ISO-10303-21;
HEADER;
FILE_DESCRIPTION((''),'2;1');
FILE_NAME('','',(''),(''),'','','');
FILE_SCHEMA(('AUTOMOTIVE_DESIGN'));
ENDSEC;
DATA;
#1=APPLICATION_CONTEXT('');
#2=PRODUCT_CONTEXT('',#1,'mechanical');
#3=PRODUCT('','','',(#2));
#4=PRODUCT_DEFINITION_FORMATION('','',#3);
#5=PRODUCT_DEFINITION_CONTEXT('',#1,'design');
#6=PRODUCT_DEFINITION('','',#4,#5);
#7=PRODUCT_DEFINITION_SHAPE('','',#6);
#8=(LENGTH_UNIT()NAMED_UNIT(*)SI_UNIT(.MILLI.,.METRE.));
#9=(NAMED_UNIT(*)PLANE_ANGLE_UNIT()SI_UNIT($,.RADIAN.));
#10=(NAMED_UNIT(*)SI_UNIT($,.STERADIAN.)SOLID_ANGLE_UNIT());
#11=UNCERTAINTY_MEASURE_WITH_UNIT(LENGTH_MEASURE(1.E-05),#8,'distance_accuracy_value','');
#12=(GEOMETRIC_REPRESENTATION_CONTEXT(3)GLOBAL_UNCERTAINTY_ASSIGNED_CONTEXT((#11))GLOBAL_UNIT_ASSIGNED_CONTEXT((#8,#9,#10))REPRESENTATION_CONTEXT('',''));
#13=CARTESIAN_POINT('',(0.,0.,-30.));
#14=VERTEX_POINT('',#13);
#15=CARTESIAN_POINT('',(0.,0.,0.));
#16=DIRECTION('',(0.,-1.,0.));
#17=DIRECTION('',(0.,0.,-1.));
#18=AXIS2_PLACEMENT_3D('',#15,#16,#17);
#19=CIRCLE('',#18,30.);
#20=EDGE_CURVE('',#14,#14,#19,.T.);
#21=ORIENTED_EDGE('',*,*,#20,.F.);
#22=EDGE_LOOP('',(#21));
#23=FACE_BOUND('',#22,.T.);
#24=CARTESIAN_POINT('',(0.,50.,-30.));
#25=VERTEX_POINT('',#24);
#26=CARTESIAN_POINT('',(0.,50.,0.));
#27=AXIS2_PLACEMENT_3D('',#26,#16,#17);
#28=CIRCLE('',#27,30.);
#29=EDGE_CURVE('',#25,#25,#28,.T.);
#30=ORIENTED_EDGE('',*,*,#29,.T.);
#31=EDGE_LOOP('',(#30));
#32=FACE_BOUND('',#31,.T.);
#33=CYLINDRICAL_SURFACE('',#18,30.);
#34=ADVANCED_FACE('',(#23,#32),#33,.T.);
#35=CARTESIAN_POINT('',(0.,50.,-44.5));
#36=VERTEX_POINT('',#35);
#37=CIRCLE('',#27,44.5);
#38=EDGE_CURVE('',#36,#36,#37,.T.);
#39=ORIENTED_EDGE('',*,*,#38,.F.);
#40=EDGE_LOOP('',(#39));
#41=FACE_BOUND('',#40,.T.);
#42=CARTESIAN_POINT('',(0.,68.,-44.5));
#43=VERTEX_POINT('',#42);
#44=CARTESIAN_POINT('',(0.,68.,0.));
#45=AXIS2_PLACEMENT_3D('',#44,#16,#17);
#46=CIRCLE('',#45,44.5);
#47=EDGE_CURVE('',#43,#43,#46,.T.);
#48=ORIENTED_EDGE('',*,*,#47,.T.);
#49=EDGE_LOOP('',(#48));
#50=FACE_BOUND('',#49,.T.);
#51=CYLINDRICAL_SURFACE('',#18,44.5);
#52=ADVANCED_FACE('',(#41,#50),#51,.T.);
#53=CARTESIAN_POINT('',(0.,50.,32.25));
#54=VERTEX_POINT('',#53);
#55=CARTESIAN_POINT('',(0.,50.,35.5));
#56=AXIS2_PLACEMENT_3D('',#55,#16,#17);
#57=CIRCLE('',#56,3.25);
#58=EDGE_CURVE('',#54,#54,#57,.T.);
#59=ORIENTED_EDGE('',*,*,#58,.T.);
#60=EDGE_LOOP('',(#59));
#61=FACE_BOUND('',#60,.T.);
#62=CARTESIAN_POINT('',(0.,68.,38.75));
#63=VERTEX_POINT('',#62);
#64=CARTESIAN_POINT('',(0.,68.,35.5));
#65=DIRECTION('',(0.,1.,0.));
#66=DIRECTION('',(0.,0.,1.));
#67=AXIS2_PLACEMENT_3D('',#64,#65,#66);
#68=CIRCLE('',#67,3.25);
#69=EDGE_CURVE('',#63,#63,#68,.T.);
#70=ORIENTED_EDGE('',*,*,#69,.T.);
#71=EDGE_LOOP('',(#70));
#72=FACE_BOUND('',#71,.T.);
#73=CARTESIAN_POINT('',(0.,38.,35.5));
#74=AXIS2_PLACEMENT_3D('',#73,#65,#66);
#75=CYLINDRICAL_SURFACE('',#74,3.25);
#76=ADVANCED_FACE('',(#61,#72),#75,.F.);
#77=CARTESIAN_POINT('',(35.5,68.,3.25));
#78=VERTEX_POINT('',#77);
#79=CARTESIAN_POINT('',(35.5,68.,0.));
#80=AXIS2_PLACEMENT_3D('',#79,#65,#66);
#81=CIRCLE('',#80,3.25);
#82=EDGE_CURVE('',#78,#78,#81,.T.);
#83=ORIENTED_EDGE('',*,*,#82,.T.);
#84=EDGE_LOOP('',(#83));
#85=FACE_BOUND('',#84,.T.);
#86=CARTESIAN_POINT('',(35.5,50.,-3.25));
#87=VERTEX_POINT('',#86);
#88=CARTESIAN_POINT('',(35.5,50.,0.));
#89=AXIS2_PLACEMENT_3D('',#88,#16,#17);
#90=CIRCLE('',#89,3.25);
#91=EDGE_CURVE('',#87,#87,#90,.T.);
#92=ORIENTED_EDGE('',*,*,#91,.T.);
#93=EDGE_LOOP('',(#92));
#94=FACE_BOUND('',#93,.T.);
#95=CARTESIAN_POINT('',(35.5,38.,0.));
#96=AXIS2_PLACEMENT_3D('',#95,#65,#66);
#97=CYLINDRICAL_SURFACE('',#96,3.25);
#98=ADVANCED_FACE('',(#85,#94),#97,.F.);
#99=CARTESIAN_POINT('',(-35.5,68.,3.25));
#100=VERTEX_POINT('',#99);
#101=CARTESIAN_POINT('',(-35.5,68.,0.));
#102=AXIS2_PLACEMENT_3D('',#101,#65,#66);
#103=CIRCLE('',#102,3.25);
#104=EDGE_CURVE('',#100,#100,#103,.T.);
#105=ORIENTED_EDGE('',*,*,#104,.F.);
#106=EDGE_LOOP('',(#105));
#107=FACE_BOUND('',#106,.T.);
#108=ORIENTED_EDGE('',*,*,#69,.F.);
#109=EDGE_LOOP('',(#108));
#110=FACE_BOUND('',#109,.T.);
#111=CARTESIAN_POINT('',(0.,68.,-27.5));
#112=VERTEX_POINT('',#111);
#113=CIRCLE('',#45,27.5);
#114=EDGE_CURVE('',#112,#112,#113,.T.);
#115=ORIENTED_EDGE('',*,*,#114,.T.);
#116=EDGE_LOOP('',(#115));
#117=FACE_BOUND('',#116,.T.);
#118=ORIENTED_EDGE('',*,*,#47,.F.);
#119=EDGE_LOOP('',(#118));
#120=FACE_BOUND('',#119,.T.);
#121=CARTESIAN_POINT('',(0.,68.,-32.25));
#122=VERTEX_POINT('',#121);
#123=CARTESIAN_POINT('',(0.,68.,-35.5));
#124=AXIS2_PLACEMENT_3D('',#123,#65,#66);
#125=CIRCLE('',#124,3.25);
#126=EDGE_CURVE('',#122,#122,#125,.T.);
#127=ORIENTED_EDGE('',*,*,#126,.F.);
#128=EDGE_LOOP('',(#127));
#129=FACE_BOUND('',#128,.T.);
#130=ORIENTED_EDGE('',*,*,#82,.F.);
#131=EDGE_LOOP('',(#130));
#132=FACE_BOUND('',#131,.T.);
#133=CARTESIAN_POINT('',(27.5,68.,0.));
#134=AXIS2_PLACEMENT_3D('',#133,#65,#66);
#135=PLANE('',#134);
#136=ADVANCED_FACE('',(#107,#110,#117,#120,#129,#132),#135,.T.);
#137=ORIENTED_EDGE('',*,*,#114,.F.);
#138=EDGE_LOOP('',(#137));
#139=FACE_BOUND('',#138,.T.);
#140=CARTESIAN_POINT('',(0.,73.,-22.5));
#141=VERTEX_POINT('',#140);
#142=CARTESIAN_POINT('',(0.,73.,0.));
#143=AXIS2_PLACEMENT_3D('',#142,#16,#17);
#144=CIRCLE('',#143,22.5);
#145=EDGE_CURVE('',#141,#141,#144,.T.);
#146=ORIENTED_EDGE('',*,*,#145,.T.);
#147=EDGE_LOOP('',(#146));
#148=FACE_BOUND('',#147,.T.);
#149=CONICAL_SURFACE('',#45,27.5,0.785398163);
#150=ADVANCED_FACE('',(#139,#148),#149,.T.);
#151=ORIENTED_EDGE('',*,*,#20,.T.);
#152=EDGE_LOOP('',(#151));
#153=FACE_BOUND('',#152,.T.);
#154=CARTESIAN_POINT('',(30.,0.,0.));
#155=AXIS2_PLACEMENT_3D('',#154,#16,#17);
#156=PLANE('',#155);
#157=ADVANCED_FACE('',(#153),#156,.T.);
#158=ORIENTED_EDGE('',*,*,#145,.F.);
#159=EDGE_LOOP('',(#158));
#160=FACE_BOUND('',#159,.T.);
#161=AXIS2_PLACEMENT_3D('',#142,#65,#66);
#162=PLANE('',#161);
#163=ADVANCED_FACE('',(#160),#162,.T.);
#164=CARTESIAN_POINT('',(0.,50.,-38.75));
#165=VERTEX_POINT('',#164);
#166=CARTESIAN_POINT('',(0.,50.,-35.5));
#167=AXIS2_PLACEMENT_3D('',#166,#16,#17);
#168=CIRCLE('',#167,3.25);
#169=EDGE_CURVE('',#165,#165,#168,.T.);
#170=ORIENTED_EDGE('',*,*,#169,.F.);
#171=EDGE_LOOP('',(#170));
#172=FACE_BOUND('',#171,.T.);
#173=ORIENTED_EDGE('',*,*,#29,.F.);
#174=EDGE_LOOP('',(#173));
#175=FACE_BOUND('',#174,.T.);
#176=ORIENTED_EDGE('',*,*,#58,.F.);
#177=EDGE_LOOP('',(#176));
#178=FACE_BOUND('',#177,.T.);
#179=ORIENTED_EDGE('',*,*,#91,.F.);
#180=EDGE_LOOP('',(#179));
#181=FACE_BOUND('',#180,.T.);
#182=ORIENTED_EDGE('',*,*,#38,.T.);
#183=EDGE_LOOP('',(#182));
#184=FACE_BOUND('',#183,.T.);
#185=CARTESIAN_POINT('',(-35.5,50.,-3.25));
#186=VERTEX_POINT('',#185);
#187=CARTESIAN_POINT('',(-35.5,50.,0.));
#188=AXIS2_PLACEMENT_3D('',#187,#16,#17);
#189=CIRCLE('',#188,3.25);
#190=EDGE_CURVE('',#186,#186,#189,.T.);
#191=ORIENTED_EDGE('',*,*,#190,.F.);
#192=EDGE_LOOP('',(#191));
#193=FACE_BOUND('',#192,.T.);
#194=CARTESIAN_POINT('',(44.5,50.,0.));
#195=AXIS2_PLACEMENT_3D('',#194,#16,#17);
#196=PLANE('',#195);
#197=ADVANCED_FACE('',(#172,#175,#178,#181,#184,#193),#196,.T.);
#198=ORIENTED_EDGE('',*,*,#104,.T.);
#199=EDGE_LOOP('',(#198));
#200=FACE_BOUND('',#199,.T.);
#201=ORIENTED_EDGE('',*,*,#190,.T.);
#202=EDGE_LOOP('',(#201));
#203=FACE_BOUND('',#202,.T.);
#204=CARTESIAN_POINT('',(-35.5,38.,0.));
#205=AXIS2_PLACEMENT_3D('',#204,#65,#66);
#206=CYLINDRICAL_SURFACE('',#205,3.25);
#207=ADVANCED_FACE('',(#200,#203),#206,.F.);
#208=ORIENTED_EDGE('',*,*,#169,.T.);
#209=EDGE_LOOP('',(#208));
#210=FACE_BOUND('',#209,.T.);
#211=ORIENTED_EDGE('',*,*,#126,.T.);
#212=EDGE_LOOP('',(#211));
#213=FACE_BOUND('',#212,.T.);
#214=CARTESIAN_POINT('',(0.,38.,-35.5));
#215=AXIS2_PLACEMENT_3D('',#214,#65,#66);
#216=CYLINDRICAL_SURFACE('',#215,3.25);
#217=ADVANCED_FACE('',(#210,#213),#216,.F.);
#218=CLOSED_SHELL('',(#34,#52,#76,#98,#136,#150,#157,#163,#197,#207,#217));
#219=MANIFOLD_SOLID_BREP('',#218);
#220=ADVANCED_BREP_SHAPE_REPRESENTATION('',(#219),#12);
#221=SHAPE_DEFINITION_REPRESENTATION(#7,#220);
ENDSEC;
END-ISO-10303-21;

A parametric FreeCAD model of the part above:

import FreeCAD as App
import Part
import Sketcher
from FreeCAD import Vector
Q = App.Units.Quantity


def add_polygon(sketch, points):
    """Adds a closed chain of lines whose ends are joined by coincident constraints."""
    first, n = sketch.GeometryCount, len(points)
    for a, b in zip(points, points[1:] + points[:1]):
        sketch.addGeometry(Part.LineSegment(App.Vector(*a, 0), App.Vector(*b, 0)), False)
    for i in range(n):
        sketch.addConstraint(Sketcher.Constraint("Coincident", first + i, 2, first + (i + 1) % n, 1))

doc = App.newDocument("Part")
params = doc.addObject("Spreadsheet::Sheet", "Params")
for row, (alias, value) in enumerate([
    ("sketch1_width", "30 mm"),
    ("sketch1_width2", "17 mm"),
    ("sketch1_height", "73 mm"),
    ("sketch1_height2", "50 mm"),
    ("sketch1_height3", "18 mm"),
    ("revolution_angle", "360 deg"),
    ("sketch2_diameter", "6.5 mm"),
    ("pocket1_length", "30 mm"),
], start=1):
    params.set(f"A{row}", alias)
    params.set(f"B{row}", "=" + value)
    params.setAlias(f"B{row}", alias)

body = doc.addObject("PartDesign::Body", "Body")

# Sketch on XY plane
sketch1 = body.newObject("Sketcher::SketchObject", "Sketch")
sketch1.AttachmentSupport = (doc.getObject("XY_Plane"), [""])
sketch1.MapMode = "FlatFace"
add_polygon(sketch1, [(22.5, 73), (0, 73), (0, 0), (30, 0), (30, 50), (44.5, 50), (44.5, 68), (27.5, 68)])  # lines 0-7
sketch1.addConstraint(Sketcher.Constraint("Horizontal", 0))
sketch1.addConstraint(Sketcher.Constraint("Vertical", 1))
sketch1.addConstraint(Sketcher.Constraint("Horizontal", 2))
sketch1.addConstraint(Sketcher.Constraint("Vertical", 3))
sketch1.addConstraint(Sketcher.Constraint("Horizontal", 4))
sketch1.addConstraint(Sketcher.Constraint("Vertical", 5))
sketch1.addConstraint(Sketcher.Constraint("Horizontal", 6))
sketch1.addConstraint(Sketcher.Constraint("Coincident", 1, 2, -1, 1))
sketch1.addConstraint(Sketcher.Constraint("DistanceX", 2, 1, 2, 2, Q("30 mm")))
sketch1.addConstraint(Sketcher.Constraint("DistanceX", 6, 2, 6, 1, Q("17 mm")))
sketch1.addConstraint(Sketcher.Constraint("DistanceY", 1, 2, 1, 1, Q("73 mm")))
sketch1.addConstraint(Sketcher.Constraint("DistanceY", 3, 1, 3, 2, Q("50 mm")))
sketch1.addConstraint(Sketcher.Constraint("DistanceY", 5, 1, 5, 2, Q("18 mm")))
sketch1.addConstraint(Sketcher.Constraint("Angle", 7, Q("135 deg")))
sketch1.addConstraint(Sketcher.Constraint("DistanceX", 0, 2, 0, 1, Q("22.5 mm")))
sketch1.setExpression("Constraints[16]", "Params.sketch1_width")
sketch1.setExpression("Constraints[17]", "Params.sketch1_width2")
sketch1.setExpression("Constraints[18]", "Params.sketch1_height")
sketch1.setExpression("Constraints[19]", "Params.sketch1_height2")
sketch1.setExpression("Constraints[20]", "Params.sketch1_height3")
revolution = body.newObject("PartDesign::Revolution", "Revolution")
revolution.Profile = sketch1
revolution.ReferenceAxis = (sketch1, ["V_Axis"])
revolution.setExpression("Angle", "Params.revolution_angle")

# Sketch on XZ plane
sketch2 = body.newObject("Sketcher::SketchObject", "Sketch001")
sketch2.AttachmentSupport = (doc.getObject("XZ_Plane"), [""])
sketch2.MapMode = "FlatFace"
sketch2.AttachmentOffset = App.Placement(Vector(0, 0, -68), App.Rotation())
sketch2.addGeometry(Part.Circle(Vector(0, -35.5, 0), Vector(0, 0, 1), 3.25), False)
sketch2.addGeometry(Part.Circle(Vector(35.5, 0, 0), Vector(0, 0, 1), 3.25), False)
sketch2.addGeometry(Part.Circle(Vector(0, 35.5, 0), Vector(0, 0, 1), 3.25), False)
sketch2.addGeometry(Part.Circle(Vector(-35.5, 0, 0), Vector(0, 0, 1), 3.25), False)
sketch2.addConstraint(Sketcher.Constraint("Equal", 0, 1))
sketch2.addConstraint(Sketcher.Constraint("Equal", 1, 2))
sketch2.addConstraint(Sketcher.Constraint("Equal", 2, 3))
sketch2.addConstraint(Sketcher.Constraint("Symmetric", 0, 3, 2, 3, -1, 1))
sketch2.addConstraint(Sketcher.Constraint("Symmetric", 1, 3, 3, 3, -1, 1))
sketch2.addConstraint(Sketcher.Constraint("PointOnObject", 0, 3, -2))
sketch2.addConstraint(Sketcher.Constraint("PointOnObject", 1, 3, -1))
sketch2.addConstraint(Sketcher.Constraint("Diameter", 0, Q("6.5 mm")))
sketch2.addConstraint(Sketcher.Constraint("DistanceY", 0, 3, 2, 3, Q("71 mm")))
sketch2.addConstraint(Sketcher.Constraint("DistanceX", 3, 3, 1, 3, Q("71 mm")))
sketch2.setExpression("Constraints[7]", "Params.sketch2_diameter")
pocket1 = body.newObject("PartDesign::Pocket", "Pocket")
pocket1.Profile = sketch2
pocket1.setExpression("Length", "Params.pocket1_length")
pocket1.Reversed = True

doc.recompute()
